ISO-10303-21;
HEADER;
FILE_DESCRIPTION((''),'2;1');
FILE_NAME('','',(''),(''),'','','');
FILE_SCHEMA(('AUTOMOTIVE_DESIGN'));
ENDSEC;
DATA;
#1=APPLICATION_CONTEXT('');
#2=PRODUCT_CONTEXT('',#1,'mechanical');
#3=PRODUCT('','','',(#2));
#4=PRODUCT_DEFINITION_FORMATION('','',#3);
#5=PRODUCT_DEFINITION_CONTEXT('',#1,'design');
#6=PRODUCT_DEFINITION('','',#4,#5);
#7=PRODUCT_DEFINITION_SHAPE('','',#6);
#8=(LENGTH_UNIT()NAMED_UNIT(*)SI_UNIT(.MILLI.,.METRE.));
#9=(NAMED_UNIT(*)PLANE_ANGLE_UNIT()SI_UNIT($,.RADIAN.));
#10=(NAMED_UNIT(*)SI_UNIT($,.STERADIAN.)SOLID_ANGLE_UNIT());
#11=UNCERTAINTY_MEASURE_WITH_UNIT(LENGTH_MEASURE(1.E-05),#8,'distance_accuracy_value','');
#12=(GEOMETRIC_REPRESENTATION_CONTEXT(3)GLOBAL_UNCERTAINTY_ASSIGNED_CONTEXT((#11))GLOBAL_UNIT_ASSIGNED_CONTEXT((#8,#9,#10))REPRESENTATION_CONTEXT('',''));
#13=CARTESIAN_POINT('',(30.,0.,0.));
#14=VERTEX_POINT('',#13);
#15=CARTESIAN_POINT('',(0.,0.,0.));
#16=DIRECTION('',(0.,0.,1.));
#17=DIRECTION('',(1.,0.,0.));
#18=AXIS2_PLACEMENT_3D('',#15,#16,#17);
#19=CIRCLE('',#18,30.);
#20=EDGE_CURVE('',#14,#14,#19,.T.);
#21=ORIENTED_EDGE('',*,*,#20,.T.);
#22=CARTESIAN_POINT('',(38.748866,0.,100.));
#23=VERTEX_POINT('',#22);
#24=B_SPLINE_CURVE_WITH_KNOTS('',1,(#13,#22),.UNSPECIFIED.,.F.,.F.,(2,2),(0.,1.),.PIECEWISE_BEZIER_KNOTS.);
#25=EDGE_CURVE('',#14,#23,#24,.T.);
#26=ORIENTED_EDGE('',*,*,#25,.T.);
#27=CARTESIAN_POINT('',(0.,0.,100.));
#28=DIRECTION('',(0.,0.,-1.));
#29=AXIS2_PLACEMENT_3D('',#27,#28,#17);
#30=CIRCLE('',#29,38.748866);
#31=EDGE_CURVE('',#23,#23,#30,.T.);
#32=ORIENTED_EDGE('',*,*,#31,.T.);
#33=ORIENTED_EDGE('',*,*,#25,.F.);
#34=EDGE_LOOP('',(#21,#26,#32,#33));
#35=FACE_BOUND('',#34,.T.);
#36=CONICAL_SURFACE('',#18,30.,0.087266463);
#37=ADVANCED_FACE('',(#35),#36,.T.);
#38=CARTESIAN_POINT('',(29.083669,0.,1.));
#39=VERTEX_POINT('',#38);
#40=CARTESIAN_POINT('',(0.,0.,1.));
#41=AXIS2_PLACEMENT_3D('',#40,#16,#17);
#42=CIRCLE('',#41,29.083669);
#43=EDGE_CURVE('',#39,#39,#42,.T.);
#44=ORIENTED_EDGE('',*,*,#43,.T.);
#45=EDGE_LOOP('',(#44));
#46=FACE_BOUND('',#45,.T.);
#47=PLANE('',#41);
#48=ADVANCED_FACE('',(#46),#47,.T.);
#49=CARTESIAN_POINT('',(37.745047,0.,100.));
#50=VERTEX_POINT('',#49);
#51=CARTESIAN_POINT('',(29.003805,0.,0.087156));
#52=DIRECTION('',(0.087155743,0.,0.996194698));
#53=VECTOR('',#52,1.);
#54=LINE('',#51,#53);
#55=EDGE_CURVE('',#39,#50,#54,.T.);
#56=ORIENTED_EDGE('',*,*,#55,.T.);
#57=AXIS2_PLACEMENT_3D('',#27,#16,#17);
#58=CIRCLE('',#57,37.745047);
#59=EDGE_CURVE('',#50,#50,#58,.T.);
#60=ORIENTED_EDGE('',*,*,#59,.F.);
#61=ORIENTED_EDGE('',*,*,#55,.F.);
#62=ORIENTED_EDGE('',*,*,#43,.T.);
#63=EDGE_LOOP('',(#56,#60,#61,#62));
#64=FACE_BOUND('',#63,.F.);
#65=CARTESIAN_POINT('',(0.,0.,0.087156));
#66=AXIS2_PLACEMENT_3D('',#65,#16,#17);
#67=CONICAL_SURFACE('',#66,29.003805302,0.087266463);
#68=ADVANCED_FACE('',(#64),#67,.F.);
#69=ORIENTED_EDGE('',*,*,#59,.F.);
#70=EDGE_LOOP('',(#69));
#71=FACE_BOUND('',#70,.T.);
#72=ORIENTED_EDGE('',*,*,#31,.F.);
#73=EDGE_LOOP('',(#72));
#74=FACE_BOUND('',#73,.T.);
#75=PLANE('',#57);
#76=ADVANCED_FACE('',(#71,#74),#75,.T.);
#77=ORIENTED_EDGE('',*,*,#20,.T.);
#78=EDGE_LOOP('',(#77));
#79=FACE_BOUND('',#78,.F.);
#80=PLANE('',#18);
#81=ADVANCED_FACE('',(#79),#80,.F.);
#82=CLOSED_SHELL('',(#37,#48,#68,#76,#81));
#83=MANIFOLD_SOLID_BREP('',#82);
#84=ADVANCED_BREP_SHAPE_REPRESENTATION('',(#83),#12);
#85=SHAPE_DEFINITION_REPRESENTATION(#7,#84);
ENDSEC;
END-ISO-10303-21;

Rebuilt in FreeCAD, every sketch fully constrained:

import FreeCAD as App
import Part
import Sketcher


def faces_at(feature, points):
    """Names of the faces that lie closest to the given points."""
    faces = feature.Shape.Faces
    near = lambda p: min(range(len(faces)), key=lambda i: faces[i].distToShape(Part.Vertex(*p))[0])
    return sorted({f"Face{near(p) + 1}" for p in points})

doc = App.newDocument("Part")
body = doc.addObject("PartDesign::Body", "Body")

# Sketch on XY plane
sketch1 = body.newObject("Sketcher::SketchObject", "Sketch")
sketch1.AttachmentSupport = (doc.getObject("XY_Plane"), [""])
sketch1.MapMode = "FlatFace"
sketch1.addGeometry(Part.Circle(App.Vector(0, 0, 0), App.Vector(0, 0, 1), 30), False)
sketch1.addConstraint([
    Sketcher.Constraint("Coincident", 0, 3, -1, 1),
    Sketcher.Constraint("Diameter", 0, 60.0),
])
pad1 = body.newObject("PartDesign::Pad", "Pad")
pad1.Profile = sketch1
pad1.Length = 100
pad1.TaperAngle = 5
doc.recompute()

thickness = body.newObject("PartDesign::Thickness", "Thickness")
thickness.Base = (pad1, faces_at(pad1, [(0, 0, 100)]))
thickness.Value = 1
thickness.Reversed = True
thickness.Join = "Intersection"

doc.recompute()
